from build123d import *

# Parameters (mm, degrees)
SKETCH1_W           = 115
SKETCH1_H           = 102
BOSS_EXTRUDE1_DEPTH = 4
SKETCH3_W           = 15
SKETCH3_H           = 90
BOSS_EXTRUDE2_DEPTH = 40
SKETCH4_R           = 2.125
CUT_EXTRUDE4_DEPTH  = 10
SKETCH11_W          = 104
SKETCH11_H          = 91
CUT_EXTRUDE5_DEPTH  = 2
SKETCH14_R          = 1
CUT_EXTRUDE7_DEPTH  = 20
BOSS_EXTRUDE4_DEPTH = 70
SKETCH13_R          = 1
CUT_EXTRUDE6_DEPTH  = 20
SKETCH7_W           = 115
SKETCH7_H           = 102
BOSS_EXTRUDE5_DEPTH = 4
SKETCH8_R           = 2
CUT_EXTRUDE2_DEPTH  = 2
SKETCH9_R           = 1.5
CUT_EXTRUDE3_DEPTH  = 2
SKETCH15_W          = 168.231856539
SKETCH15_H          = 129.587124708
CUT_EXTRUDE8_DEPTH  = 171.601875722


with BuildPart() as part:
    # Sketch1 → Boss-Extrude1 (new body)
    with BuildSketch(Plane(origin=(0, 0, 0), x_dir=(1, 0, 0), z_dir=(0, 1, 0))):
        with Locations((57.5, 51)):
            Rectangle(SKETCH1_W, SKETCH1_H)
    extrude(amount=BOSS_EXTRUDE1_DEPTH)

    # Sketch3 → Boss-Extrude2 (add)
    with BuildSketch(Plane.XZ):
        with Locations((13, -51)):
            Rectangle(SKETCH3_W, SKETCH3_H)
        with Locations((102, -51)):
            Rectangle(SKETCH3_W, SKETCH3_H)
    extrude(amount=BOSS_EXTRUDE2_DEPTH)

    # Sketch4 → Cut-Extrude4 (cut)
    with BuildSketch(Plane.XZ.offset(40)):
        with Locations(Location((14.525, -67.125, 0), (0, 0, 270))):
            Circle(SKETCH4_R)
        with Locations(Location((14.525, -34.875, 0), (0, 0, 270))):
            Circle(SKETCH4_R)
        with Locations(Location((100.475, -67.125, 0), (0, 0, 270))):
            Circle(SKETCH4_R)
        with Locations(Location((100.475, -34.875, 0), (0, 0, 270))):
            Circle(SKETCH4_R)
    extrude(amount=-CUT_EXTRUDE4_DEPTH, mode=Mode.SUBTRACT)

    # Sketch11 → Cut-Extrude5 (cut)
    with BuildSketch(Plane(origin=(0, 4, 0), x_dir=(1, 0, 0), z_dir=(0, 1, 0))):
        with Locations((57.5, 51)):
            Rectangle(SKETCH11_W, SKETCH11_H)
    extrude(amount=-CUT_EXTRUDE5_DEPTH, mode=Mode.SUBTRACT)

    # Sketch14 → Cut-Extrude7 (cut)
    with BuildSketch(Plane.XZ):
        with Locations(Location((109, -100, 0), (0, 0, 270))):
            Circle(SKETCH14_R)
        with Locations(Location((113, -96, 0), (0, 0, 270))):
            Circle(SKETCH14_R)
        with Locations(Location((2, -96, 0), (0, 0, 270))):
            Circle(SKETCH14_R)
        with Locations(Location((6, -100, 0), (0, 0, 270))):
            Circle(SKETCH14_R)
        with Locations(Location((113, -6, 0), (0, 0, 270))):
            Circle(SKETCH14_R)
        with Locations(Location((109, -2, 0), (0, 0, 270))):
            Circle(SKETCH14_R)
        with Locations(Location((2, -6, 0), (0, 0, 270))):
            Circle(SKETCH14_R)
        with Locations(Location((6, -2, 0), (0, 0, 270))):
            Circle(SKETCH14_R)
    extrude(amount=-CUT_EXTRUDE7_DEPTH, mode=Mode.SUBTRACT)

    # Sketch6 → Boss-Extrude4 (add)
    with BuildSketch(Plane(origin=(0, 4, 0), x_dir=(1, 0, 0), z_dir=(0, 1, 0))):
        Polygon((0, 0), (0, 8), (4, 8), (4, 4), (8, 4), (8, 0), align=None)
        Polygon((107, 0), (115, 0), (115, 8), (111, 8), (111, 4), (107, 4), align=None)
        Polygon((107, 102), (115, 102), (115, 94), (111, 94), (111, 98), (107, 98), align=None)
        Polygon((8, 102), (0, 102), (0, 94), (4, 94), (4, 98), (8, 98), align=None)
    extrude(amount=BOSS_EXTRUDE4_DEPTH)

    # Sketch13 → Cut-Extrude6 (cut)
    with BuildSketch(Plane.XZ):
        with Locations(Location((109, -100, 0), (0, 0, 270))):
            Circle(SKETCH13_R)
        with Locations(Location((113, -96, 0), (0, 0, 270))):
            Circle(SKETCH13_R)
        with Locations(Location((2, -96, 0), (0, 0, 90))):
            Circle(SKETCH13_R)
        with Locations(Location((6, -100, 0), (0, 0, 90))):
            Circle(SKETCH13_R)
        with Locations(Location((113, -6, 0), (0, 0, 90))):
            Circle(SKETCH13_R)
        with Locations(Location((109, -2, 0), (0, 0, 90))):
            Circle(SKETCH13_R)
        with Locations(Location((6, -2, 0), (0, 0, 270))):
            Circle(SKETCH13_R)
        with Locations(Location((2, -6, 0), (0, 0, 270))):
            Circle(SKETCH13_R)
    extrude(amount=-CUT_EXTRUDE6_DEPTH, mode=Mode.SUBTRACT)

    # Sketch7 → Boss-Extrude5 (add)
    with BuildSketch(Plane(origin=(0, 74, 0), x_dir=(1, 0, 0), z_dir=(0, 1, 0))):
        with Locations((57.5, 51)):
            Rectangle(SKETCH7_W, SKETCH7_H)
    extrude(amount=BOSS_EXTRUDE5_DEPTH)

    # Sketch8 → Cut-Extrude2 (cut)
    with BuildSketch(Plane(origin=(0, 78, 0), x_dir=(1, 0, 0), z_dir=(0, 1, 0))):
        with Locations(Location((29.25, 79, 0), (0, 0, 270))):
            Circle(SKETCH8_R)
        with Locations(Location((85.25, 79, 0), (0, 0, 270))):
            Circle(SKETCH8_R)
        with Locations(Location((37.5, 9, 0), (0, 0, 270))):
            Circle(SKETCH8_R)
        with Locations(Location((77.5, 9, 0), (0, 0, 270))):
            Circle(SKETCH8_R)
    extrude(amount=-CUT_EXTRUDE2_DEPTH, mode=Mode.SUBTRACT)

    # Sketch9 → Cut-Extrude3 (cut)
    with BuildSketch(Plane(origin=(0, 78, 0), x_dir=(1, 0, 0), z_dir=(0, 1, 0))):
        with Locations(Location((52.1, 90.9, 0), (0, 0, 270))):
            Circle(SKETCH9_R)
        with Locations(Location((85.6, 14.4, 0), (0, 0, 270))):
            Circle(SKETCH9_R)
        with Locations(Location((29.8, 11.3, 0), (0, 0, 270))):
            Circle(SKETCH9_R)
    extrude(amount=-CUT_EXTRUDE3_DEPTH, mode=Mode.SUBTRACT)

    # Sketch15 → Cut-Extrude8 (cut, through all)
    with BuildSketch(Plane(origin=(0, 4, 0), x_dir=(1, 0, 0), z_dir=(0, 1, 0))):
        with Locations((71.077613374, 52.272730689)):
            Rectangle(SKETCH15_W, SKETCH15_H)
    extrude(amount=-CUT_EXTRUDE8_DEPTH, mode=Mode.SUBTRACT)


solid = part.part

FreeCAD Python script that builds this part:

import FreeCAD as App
import Part
import Sketcher
Q = App.Units.Quantity


def add_polygon(sketch, points):
    """Adds a closed chain of lines whose ends are joined by coincident constraints."""
    first, n = sketch.GeometryCount, len(points)
    for a, b in zip(points, points[1:] + points[:1]):
        sketch.addGeometry(Part.LineSegment(App.Vector(*a, 0), App.Vector(*b, 0)), False)
    for i in range(n):
        sketch.addConstraint(Sketcher.Constraint("Coincident", first + i, 2, first + (i + 1) % n, 1))

doc = App.newDocument("Part")
params = doc.addObject("Spreadsheet::Sheet", "Params")
for row, (alias, value) in enumerate([
    ("sketch1_width", "115 mm"),
    ("sketch1_height", "102 mm"),
    ("pad1_length", "4 mm"),
    ("sketch2_width", "15 mm"),
    ("sketch2_height", "90 mm"),
    ("pad2_length", "40 mm"),
    ("sketch3_diameter", "4.25 mm"),
    ("pocket1_length", "10 mm"),
    ("sketch4_width", "104 mm"),
    ("sketch4_height", "91 mm"),
    ("pocket2_length", "2 mm"),
    ("sketch5_diameter", "2 mm"),
    ("pocket3_length", "20 mm"),
    ("sketch6_width", "8 mm"),
    ("pad3_length", "70 mm"),
    ("sketch7_diameter", "2 mm"),
    ("pocket4_length", "20 mm"),
    ("sketch8_width", "115 mm"),
    ("sketch8_height", "102 mm"),
    ("pad4_length", "4 mm"),
    ("sketch9_diameter", "4 mm"),
    ("pocket5_length", "2 mm"),
    ("sketch10_diameter", "3 mm"),
    ("pocket6_length", "2 mm"),
], start=1):
    params.set(f"A{row}", alias)
    params.set(f"B{row}", "=" + value)
    params.setAlias(f"B{row}", alias)

body = doc.addObject("PartDesign::Body", "Body")

sketch1 = body.newObject("Sketcher::SketchObject", "Sketch")
sketch1.AttachmentSupport = (doc.getObject("XZ_Plane"), [""])
sketch1.MapMode = "FlatFace"
add_polygon(sketch1, [(0, -102), (0, 0), (115, 0), (115, -102)])
sketch1.addConstraint([
    Sketcher.Constraint("Vertical", 0),
    Sketcher.Constraint("Horizontal", 1),
    Sketcher.Constraint("Vertical", 2),
    Sketcher.Constraint("Horizontal", 3),
    Sketcher.Constraint("Coincident", 0, 2, -1, 1),
    Sketcher.Constraint("DistanceX", 1, 1, 1, 2, Q("115 mm")),
    Sketcher.Constraint("DistanceY", 0, 1, 0, 2, Q("102 mm")),
])
sketch1.setExpression("Constraints[9]", "Params.sketch1_width")
sketch1.setExpression("Constraints[10]", "Params.sketch1_height")
pad1 = body.newObject("PartDesign::Pad", "Pad")
pad1.Profile = sketch1
pad1.setExpression("Length", "Params.pad1_length")
pad1.Reversed = True

sketch2 = body.newObject("Sketcher::SketchObject", "Sketch001")
sketch2.AttachmentSupport = (doc.getObject("XZ_Plane"), [""])
sketch2.MapMode = "FlatFace"
add_polygon(sketch2, [(6, -6), (6, -96), (20, -96), (20, -6)])
add_polygon(sketch2, [(94, -6), (94, -96), (110, -96), (110, -6)])
sketch2.addConstraint([
    Sketcher.Constraint("Vertical", 0),
    Sketcher.Constraint("Horizontal", 1),
    Sketcher.Constraint("Vertical", 2),
    Sketcher.Constraint("Horizontal", 3),
    Sketcher.Constraint("Vertical", 4),
    Sketcher.Constraint("Horizontal", 5),
    Sketcher.Constraint("Vertical", 6),
    Sketcher.Constraint("Horizontal", 7),
    Sketcher.Constraint("Horizontal", 1, 2, 4, 2),
    Sketcher.Constraint("Horizontal", 3, 2, 6, 2),
    Sketcher.Constraint("Equal", 3, 5),
    Sketcher.Constraint("DistanceX", 1, 1, 1, 2, Q("15 mm")),
    Sketcher.Constraint("DistanceY", 0, 2, 0, 1, Q("90 mm")),
    Sketcher.Constraint("DistanceY", 0, 2, -1, 1, Q("96 mm")),
    Sketcher.Constraint("DistanceX", 1, 2, 4, 2, Q("74 mm")),
    Sketcher.Constraint("DistanceX", -1, 1, 0, 2, Q("5.5 mm")),
])
sketch2.setExpression("Constraints[19]", "Params.sketch2_width")
sketch2.setExpression("Constraints[20]", "Params.sketch2_height")
pad2 = body.newObject("PartDesign::Pad", "Pad001")
pad2.Profile = sketch2
pad2.setExpression("Length", "Params.pad2_length")

sketch3 = body.newObject("Sketcher::SketchObject", "Sketch002")
sketch3.AttachmentSupport = (doc.getObject("XZ_Plane"), [""])
sketch3.MapMode = "FlatFace"
sketch3.AttachmentOffset = App.Placement(App.Vector(0, 0, 40), App.Rotation())
sketch3.addGeometry([
    Part.Circle(App.Vector(14.5, -67.1, 0), App.Vector(0, 0, 1), 2.1),
    Part.Circle(App.Vector(14.5, -34.9, 0), App.Vector(0, 0, 1), 2.1),
    Part.Circle(App.Vector(100.5, -67.1, 0), App.Vector(0, 0, 1), 2.1),
    Part.Circle(App.Vector(100.5, -34.9, 0), App.Vector(0, 0, 1), 2.1),
], False)
sketch3.addConstraint([
    Sketcher.Constraint("Equal", 0, 1),
    Sketcher.Constraint("Equal", 1, 2),
    Sketcher.Constraint("Equal", 2, 3),
    Sketcher.Constraint("Horizontal", 0, 3, 2, 3),
    Sketcher.Constraint("Horizontal", 1, 3, 3, 3),
    Sketcher.Constraint("Vertical", 0, 3, 1, 3),
    Sketcher.Constraint("Vertical", 2, 3, 3, 3),
    Sketcher.Constraint("Diameter", 0, Q("4.25 mm")),
    Sketcher.Constraint("DistanceY", 0, 3, 1, 3, Q("32.25 mm")),
    Sketcher.Constraint("DistanceX", 0, 3, 2, 3, Q("85.95 mm")),
    Sketcher.Constraint("DistanceX", -1, 1, 0, 3, Q("14.525 mm")),
    Sketcher.Constraint("DistanceY", 0, 3, -1, 1, Q("67.125 mm")),
])
sketch3.setExpression("Constraints[7]", "Params.sketch3_diameter")
pocket1 = body.newObject("PartDesign::Pocket", "Pocket")
pocket1.Profile = sketch3
pocket1.setExpression("Length", "Params.pocket1_length")

sketch4 = body.newObject("Sketcher::SketchObject", "Sketch003")
sketch4.AttachmentSupport = (doc.getObject("XZ_Plane"), [""])
sketch4.MapMode = "FlatFace"
sketch4.AttachmentOffset = App.Placement(App.Vector(0, 0, -4), App.Rotation())
add_polygon(sketch4, [(6, -96), (6, -6), (110, -6), (110, -96)])
sketch4.addConstraint([
    Sketcher.Constraint("Vertical", 0),
    Sketcher.Constraint("Horizontal", 1),
    Sketcher.Constraint("Vertical", 2),
    Sketcher.Constraint("Horizontal", 3),
    Sketcher.Constraint("DistanceX", 1, 1, 1, 2, Q("104 mm")),
    Sketcher.Constraint("DistanceY", 0, 1, 0, 2, Q("91 mm")),
    Sketcher.Constraint("DistanceX", -1, 1, 0, 2, Q("5.5 mm")),
    Sketcher.Constraint("DistanceY", 0, 2, -1, 1, Q("5.5 mm")),
])
sketch4.setExpression("Constraints[8]", "Params.sketch4_width")
sketch4.setExpression("Constraints[9]", "Params.sketch4_height")
pocket2 = body.newObject("PartDesign::Pocket", "Pocket001")
pocket2.Profile = sketch4
pocket2.setExpression("Length", "Params.pocket2_length")
pocket2.Reversed = True

sketch5 = body.newObject("Sketcher::SketchObject", "Sketch004")
sketch5.AttachmentSupport = (doc.getObject("XZ_Plane"), [""])
sketch5.MapMode = "FlatFace"
sketch5.addGeometry([
    Part.Circle(App.Vector(109, -100, 0), App.Vector(0, 0, 1), 1),
    Part.Circle(App.Vector(113, -96, 0), App.Vector(0, 0, 1), 1),
    Part.Circle(App.Vector(2, -96, 0), App.Vector(0, 0, 1), 1),
    Part.Circle(App.Vector(6, -100, 0), App.Vector(0, 0, 1), 1),
    Part.Circle(App.Vector(113, -6, 0), App.Vector(0, 0, 1), 1),
    Part.Circle(App.Vector(109, -2, 0), App.Vector(0, 0, 1), 1),
    Part.Circle(App.Vector(2, -6, 0), App.Vector(0, 0, 1), 1),
    Part.Circle(App.Vector(6, -2, 0), App.Vector(0, 0, 1), 1),
], False)
sketch5.addConstraint([
    Sketcher.Constraint("Equal", 0, 1),
    Sketcher.Constraint("Equal", 1, 2),
    Sketcher.Constraint("Equal", 2, 3),
    Sketcher.Constraint("Equal", 3, 4),
    Sketcher.Constraint("Equal", 4, 5),
    Sketcher.Constraint("Equal", 5, 6),
    Sketcher.Constraint("Equal", 6, 7),
    Sketcher.Constraint("Horizontal", 1, 3, 2, 3),
    Sketcher.Constraint("Horizontal", 0, 3, 3, 3),
    Sketcher.Constraint("Horizontal", 4, 3, 6, 3),
    Sketcher.Constraint("Horizontal", 5, 3, 7, 3),
    Sketcher.Constraint("Vertical", 1, 3, 4, 3),
    Sketcher.Constraint("Vertical", 0, 3, 5, 3),
    Sketcher.Constraint("Vertical", 2, 3, 6, 3),
    Sketcher.Constraint("Vertical", 3, 3, 7, 3),
    Sketcher.Constraint("Diameter", 0, Q("2 mm")),
    Sketcher.Constraint("DistanceX", -1, 1, 0, 3, Q("109 mm")),
    Sketcher.Constraint("DistanceY", 0, 3, -1, 1, Q("100 mm")),
    Sketcher.Constraint("DistanceX", -1, 1, 1, 3, Q("113 mm")),
    Sketcher.Constraint("DistanceY", 1, 3, -1, 1, Q("96 mm")),
    Sketcher.Constraint("DistanceX", -1, 1, 2, 3, Q("2 mm")),
    Sketcher.Constraint("DistanceX", -1, 1, 3, 3, Q("6 mm")),
    Sketcher.Constraint("DistanceY", 4, 3, -1, 1, Q("6 mm")),
    Sketcher.Constraint("DistanceY", 5, 3, -1, 1, Q("2 mm")),
])
sketch5.setExpression("Constraints[15]", "Params.sketch5_diameter")
pocket3 = body.newObject("PartDesign::Pocket", "Pocket002")
pocket3.Profile = sketch5
pocket3.setExpression("Length", "Params.pocket3_length")

sketch6 = body.newObject("Sketcher::SketchObject", "Sketch005")
sketch6.AttachmentSupport = (doc.getObject("XZ_Plane"), [""])
sketch6.MapMode = "FlatFace"
sketch6.AttachmentOffset = App.Placement(App.Vector(0, 0, -4), App.Rotation())
add_polygon(sketch6, [(0, -8), (0, 0), (8, 0), (8, -4), (4, -4), (4, -8)])
add_polygon(sketch6, [(107, 0), (115, 0), (115, -8), (111, -8), (111, -4), (107, -4)])
add_polygon(sketch6, [(115, -102), (107, -102), (107, -98), (111, -98), (111, -94), (115, -94)])
add_polygon(sketch6, [(8, -102), (0, -102), (0, -94), (4, -94), (4, -98), (8, -98)])
sketch6.addConstraint([
    Sketcher.Constraint("Vertical", 0),
    Sketcher.Constraint("Horizontal", 1),
    Sketcher.Constraint("Vertical", 2),
    Sketcher.Constraint("Horizontal", 3),
    Sketcher.Constraint("Vertical", 4),
    Sketcher.Constraint("Horizontal", 5),
    Sketcher.Constraint("Horizontal", 6),
    Sketcher.Constraint("Vertical", 7),
    Sketcher.Constraint("Horizontal", 8),
    Sketcher.Constraint("Vertical", 9),
    Sketcher.Constraint("Horizontal", 10),
    Sketcher.Constraint("Vertical", 11),
    Sketcher.Constraint("Horizontal", 12),
    Sketcher.Constraint("Vertical", 13),
    Sketcher.Constraint("Horizontal", 14),
    Sketcher.Constraint("Vertical", 15),
    Sketcher.Constraint("Horizontal", 16),
    Sketcher.Constraint("Vertical", 17),
    Sketcher.Constraint("Horizontal", 18),
    Sketcher.Constraint("Vertical", 19),
    Sketcher.Constraint("Horizontal", 20),
    Sketcher.Constraint("Vertical", 21),
    Sketcher.Constraint("Horizontal", 22),
    Sketcher.Constraint("Vertical", 23),
    Sketcher.Constraint("Coincident", 0, 2, -1, 1),
    Sketcher.Constraint("PointOnObject", 6, 2, -1),
    Sketcher.Constraint("PointOnObject", 18, 2, -2),
    Sketcher.Constraint("Horizontal", 5, 2, 7, 2),
    Sketcher.Constraint("Horizontal", 3, 2, 9, 2),
    Sketcher.Constraint("Horizontal", 17, 2, 18, 2),
    Sketcher.Constraint("Horizontal", 16, 2, 19, 2),
    Sketcher.Constraint("Horizontal", 14, 2, 21, 2),
    Sketcher.Constraint("Vertical", 11, 2, 12, 2),
    Sketcher.Constraint("Vertical", 9, 2, 14, 2),
    Sketcher.Constraint("Vertical", 7, 2, 16, 2),
    Sketcher.Constraint("Vertical", 4, 2, 20, 2),
    Sketcher.Constraint("Vertical", 2, 2, 22, 2),
    Sketcher.Constraint("Equal", 3, 5),
    Sketcher.Constraint("Equal", 1, 6),
    Sketcher.Constraint("Equal", 5, 8),
    Sketcher.Constraint("Equal", 18, 0),
    Sketcher.Constraint("Equal", 22, 2),
    Sketcher.Constraint("Equal", 11, 13),
    Sketcher.Constraint("Equal", 13, 15),
    Sketcher.Constraint("DistanceX", 1, 1, 1, 2, Q("8 mm")),
    Sketcher.Constraint("DistanceX", -1, 1, 6, 2, Q("115 mm")),
    Sketcher.Constraint("DistanceY", 12, 2, -1, 1, Q("102 mm")),
])
sketch6.setExpression("Constraints[68]", "Params.sketch6_width")
pad3 = body.newObject("PartDesign::Pad", "Pad002")
pad3.Profile = sketch6
pad3.setExpression("Length", "Params.pad3_length")
pad3.Reversed = True

sketch7 = body.newObject("Sketcher::SketchObject", "Sketch006")
sketch7.AttachmentSupport = (doc.getObject("XZ_Plane"), [""])
sketch7.MapMode = "FlatFace"
sketch7.addGeometry([
    Part.Circle(App.Vector(109, -100, 0), App.Vector(0, 0, 1), 1),
    Part.Circle(App.Vector(113, -96, 0), App.Vector(0, 0, 1), 1),
    Part.Circle(App.Vector(2, -96, 0), App.Vector(0, 0, 1), 1),
    Part.Circle(App.Vector(6, -100, 0), App.Vector(0, 0, 1), 1),
    Part.Circle(App.Vector(113, -6, 0), App.Vector(0, 0, 1), 1),
    Part.Circle(App.Vector(109, -2, 0), App.Vector(0, 0, 1), 1),
    Part.Circle(App.Vector(6, -2, 0), App.Vector(0, 0, 1), 1),
    Part.Circle(App.Vector(2, -6, 0), App.Vector(0, 0, 1), 1),
], False)
sketch7.addConstraint([
    Sketcher.Constraint("Equal", 0, 1),
    Sketcher.Constraint("Equal", 1, 2),
    Sketcher.Constraint("Equal", 2, 3),
    Sketcher.Constraint("Equal", 3, 4),
    Sketcher.Constraint("Equal", 4, 5),
    Sketcher.Constraint("Equal", 5, 6),
    Sketcher.Constraint("Equal", 6, 7),
    Sketcher.Constraint("Horizontal", 1, 3, 2, 3),
    Sketcher.Constraint("Horizontal", 0, 3, 3, 3),
    Sketcher.Constraint("Horizontal", 5, 3, 6, 3),
    Sketcher.Constraint("Horizontal", 4, 3, 7, 3),
    Sketcher.Constraint("Vertical", 1, 3, 4, 3),
    Sketcher.Constraint("Vertical", 0, 3, 5, 3),
    Sketcher.Constraint("Vertical", 3, 3, 6, 3),
    Sketcher.Constraint("Vertical", 2, 3, 7, 3),
    Sketcher.Constraint("Diameter", 0, Q("2 mm")),
    Sketcher.Constraint("DistanceX", -1, 1, 0, 3, Q("109 mm")),
    Sketcher.Constraint("DistanceY", 0, 3, -1, 1, Q("100 mm")),
    Sketcher.Constraint("DistanceX", -1, 1, 1, 3, Q("113 mm")),
    Sketcher.Constraint("DistanceY", 1, 3, -1, 1, Q("96 mm")),
    Sketcher.Constraint("DistanceX", -1, 1, 2, 3, Q("2 mm")),
    Sketcher.Constraint("DistanceX", -1, 1, 3, 3, Q("6 mm")),
    Sketcher.Constraint("DistanceY", 4, 3, -1, 1, Q("6 mm")),
    Sketcher.Constraint("DistanceY", 5, 3, -1, 1, Q("2 mm")),
])
sketch7.setExpression("Constraints[15]", "Params.sketch7_diameter")
pocket4 = body.newObject("PartDesign::Pocket", "Pocket003")
pocket4.Profile = sketch7
pocket4.setExpression("Length", "Params.pocket4_length")

sketch8 = body.newObject("Sketcher::SketchObject", "Sketch007")
sketch8.AttachmentSupport = (doc.getObject("XZ_Plane"), [""])
sketch8.MapMode = "FlatFace"
sketch8.AttachmentOffset = App.Placement(App.Vector(0, 0, -74), App.Rotation())
add_polygon(sketch8, [(0, -102), (0, 0), (115, 0), (115, -102)])
sketch8.addConstraint([
    Sketcher.Constraint("Vertical", 0),
    Sketcher.Constraint("Horizontal", 1),
    Sketcher.Constraint("Vertical", 2),
    Sketcher.Constraint("Horizontal", 3),
    Sketcher.Constraint("Coincident", 0, 2, -1, 1),
    Sketcher.Constraint("DistanceX", 1, 1, 1, 2, Q("115 mm")),
    Sketcher.Constraint("DistanceY", 0, 1, 0, 2, Q("102 mm")),
])
sketch8.setExpression("Constraints[9]", "Params.sketch8_width")
sketch8.setExpression("Constraints[10]", "Params.sketch8_height")
pad4 = body.newObject("PartDesign::Pad", "Pad003")
pad4.Profile = sketch8
pad4.setExpression("Length", "Params.pad4_length")
pad4.Reversed = True

sketch9 = body.newObject("Sketcher::SketchObject", "Sketch008")
sketch9.AttachmentSupport = (doc.getObject("XZ_Plane"), [""])
sketch9.MapMode = "FlatFace"
sketch9.AttachmentOffset = App.Placement(App.Vector(0, 0, -78), App.Rotation())
sketch9.addGeometry([
    Part.Circle(App.Vector(29.2, -79, 0), App.Vector(0, 0, 1), 2),
    Part.Circle(App.Vector(85.2, -79, 0), App.Vector(0, 0, 1), 2),
    Part.Circle(App.Vector(37.5, -9, 0), App.Vector(0, 0, 1), 2),
    Part.Circle(App.Vector(77.5, -9, 0), App.Vector(0, 0, 1), 2),
], False)
sketch9.addConstraint([
    Sketcher.Constraint("Equal", 0, 1),
    Sketcher.Constraint("Equal", 1, 2),
    Sketcher.Constraint("Equal", 2, 3),
    Sketcher.Constraint("Horizontal", 0, 3, 1, 3),
    Sketcher.Constraint("Horizontal", 2, 3, 3, 3),
    Sketcher.Constraint("Diameter", 0, Q("4 mm")),
    Sketcher.Constraint("DistanceY", 0, 3, -1, 1, Q("79 mm")),
    Sketcher.Constraint("DistanceY", 2, 3, -1, 1, Q("9 mm")),
    Sketcher.Constraint("DistanceX", 0, 3, 1, 3, Q("56 mm")),
    Sketcher.Constraint("DistanceX", 2, 3, 3, 3, Q("40 mm")),
    Sketcher.Constraint("DistanceX", -1, 1, 2, 3, Q("37.5 mm")),
    Sketcher.Constraint("DistanceX", -1, 1, 0, 3, Q("29.25 mm")),
])
sketch9.setExpression("Constraints[5]", "Params.sketch9_diameter")
pocket5 = body.newObject("PartDesign::Pocket", "Pocket004")
pocket5.Profile = sketch9
pocket5.setExpression("Length", "Params.pocket5_length")
pocket5.Reversed = True

sketch10 = body.newObject("Sketcher::SketchObject", "Sketch009")
sketch10.AttachmentSupport = (doc.getObject("XZ_Plane"), [""])
sketch10.MapMode = "FlatFace"
sketch10.AttachmentOffset = App.Placement(App.Vector(0, 0, -78), App.Rotation())
sketch10.addGeometry([
    Part.Circle(App.Vector(52.1, -90.9, 0), App.Vector(0, 0, 1), 1.5),
    Part.Circle(App.Vector(85.6, -14.4, 0), App.Vector(0, 0, 1), 1.5),
    Part.Circle(App.Vector(29.8, -11.3, 0), App.Vector(0, 0, 1), 1.5),
], False)
sketch10.addConstraint([
    Sketcher.Constraint("Equal", 0, 1),
    Sketcher.Constraint("Equal", 1, 2),
    Sketcher.Constraint("Diameter", 0, Q("3 mm")),
    Sketcher.Constraint("DistanceX", -1, 1, 0, 3, Q("52.1 mm")),
    Sketcher.Constraint("DistanceY", 0, 3, -1, 1, Q("90.9 mm")),
    Sketcher.Constraint("DistanceX", -1, 1, 1, 3, Q("85.6 mm")),
    Sketcher.Constraint("DistanceY", 1, 3, -1, 1, Q("14.4 mm")),
    Sketcher.Constraint("DistanceX", -1, 1, 2, 3, Q("29.8 mm")),
    Sketcher.Constraint("DistanceY", 2, 3, -1, 1, Q("11.3 mm")),
])
sketch10.setExpression("Constraints[2]", "Params.sketch10_diameter")
pocket6 = body.newObject("PartDesign::Pocket", "Pocket005")
pocket6.Profile = sketch10
pocket6.setExpression("Length", "Params.pocket6_length")
pocket6.Reversed = True

sketch11 = body.newObject("Sketcher::SketchObject", "Sketch010")
sketch11.AttachmentSupport = (doc.getObject("XZ_Plane"), [""])
sketch11.MapMode = "FlatFace"
sketch11.AttachmentOffset = App.Placement(App.Vector(0, 0, -4), App.Rotation())
add_polygon(sketch11, [(-13, -117), (-13, 13), (155, 13), (155, -117)])
sketch11.addConstraint([
    Sketcher.Constraint("Vertical", 0),
    Sketcher.Constraint("Horizontal", 1),
    Sketcher.Constraint("Vertical", 2),
    Sketcher.Constraint("Horizontal", 3),
    Sketcher.Constraint("DistanceX", 1, 1, 1, 2, Q("168.231857 mm")),
    Sketcher.Constraint("DistanceY", 0, 1, 0, 2, Q("129.587125 mm")),
    Sketcher.Constraint("DistanceY", -1, 1, 0, 2, Q("12.520832 mm")),
    Sketcher.Constraint("DistanceX", -1, 1, 1, 2, Q("155.193542 mm")),
])
pocket7 = body.newObject("PartDesign::Pocket", "Pocket006")
pocket7.Profile = sketch11
pocket7.Type = "ThroughAll"
pocket7.Reversed = True

doc.recompute()
